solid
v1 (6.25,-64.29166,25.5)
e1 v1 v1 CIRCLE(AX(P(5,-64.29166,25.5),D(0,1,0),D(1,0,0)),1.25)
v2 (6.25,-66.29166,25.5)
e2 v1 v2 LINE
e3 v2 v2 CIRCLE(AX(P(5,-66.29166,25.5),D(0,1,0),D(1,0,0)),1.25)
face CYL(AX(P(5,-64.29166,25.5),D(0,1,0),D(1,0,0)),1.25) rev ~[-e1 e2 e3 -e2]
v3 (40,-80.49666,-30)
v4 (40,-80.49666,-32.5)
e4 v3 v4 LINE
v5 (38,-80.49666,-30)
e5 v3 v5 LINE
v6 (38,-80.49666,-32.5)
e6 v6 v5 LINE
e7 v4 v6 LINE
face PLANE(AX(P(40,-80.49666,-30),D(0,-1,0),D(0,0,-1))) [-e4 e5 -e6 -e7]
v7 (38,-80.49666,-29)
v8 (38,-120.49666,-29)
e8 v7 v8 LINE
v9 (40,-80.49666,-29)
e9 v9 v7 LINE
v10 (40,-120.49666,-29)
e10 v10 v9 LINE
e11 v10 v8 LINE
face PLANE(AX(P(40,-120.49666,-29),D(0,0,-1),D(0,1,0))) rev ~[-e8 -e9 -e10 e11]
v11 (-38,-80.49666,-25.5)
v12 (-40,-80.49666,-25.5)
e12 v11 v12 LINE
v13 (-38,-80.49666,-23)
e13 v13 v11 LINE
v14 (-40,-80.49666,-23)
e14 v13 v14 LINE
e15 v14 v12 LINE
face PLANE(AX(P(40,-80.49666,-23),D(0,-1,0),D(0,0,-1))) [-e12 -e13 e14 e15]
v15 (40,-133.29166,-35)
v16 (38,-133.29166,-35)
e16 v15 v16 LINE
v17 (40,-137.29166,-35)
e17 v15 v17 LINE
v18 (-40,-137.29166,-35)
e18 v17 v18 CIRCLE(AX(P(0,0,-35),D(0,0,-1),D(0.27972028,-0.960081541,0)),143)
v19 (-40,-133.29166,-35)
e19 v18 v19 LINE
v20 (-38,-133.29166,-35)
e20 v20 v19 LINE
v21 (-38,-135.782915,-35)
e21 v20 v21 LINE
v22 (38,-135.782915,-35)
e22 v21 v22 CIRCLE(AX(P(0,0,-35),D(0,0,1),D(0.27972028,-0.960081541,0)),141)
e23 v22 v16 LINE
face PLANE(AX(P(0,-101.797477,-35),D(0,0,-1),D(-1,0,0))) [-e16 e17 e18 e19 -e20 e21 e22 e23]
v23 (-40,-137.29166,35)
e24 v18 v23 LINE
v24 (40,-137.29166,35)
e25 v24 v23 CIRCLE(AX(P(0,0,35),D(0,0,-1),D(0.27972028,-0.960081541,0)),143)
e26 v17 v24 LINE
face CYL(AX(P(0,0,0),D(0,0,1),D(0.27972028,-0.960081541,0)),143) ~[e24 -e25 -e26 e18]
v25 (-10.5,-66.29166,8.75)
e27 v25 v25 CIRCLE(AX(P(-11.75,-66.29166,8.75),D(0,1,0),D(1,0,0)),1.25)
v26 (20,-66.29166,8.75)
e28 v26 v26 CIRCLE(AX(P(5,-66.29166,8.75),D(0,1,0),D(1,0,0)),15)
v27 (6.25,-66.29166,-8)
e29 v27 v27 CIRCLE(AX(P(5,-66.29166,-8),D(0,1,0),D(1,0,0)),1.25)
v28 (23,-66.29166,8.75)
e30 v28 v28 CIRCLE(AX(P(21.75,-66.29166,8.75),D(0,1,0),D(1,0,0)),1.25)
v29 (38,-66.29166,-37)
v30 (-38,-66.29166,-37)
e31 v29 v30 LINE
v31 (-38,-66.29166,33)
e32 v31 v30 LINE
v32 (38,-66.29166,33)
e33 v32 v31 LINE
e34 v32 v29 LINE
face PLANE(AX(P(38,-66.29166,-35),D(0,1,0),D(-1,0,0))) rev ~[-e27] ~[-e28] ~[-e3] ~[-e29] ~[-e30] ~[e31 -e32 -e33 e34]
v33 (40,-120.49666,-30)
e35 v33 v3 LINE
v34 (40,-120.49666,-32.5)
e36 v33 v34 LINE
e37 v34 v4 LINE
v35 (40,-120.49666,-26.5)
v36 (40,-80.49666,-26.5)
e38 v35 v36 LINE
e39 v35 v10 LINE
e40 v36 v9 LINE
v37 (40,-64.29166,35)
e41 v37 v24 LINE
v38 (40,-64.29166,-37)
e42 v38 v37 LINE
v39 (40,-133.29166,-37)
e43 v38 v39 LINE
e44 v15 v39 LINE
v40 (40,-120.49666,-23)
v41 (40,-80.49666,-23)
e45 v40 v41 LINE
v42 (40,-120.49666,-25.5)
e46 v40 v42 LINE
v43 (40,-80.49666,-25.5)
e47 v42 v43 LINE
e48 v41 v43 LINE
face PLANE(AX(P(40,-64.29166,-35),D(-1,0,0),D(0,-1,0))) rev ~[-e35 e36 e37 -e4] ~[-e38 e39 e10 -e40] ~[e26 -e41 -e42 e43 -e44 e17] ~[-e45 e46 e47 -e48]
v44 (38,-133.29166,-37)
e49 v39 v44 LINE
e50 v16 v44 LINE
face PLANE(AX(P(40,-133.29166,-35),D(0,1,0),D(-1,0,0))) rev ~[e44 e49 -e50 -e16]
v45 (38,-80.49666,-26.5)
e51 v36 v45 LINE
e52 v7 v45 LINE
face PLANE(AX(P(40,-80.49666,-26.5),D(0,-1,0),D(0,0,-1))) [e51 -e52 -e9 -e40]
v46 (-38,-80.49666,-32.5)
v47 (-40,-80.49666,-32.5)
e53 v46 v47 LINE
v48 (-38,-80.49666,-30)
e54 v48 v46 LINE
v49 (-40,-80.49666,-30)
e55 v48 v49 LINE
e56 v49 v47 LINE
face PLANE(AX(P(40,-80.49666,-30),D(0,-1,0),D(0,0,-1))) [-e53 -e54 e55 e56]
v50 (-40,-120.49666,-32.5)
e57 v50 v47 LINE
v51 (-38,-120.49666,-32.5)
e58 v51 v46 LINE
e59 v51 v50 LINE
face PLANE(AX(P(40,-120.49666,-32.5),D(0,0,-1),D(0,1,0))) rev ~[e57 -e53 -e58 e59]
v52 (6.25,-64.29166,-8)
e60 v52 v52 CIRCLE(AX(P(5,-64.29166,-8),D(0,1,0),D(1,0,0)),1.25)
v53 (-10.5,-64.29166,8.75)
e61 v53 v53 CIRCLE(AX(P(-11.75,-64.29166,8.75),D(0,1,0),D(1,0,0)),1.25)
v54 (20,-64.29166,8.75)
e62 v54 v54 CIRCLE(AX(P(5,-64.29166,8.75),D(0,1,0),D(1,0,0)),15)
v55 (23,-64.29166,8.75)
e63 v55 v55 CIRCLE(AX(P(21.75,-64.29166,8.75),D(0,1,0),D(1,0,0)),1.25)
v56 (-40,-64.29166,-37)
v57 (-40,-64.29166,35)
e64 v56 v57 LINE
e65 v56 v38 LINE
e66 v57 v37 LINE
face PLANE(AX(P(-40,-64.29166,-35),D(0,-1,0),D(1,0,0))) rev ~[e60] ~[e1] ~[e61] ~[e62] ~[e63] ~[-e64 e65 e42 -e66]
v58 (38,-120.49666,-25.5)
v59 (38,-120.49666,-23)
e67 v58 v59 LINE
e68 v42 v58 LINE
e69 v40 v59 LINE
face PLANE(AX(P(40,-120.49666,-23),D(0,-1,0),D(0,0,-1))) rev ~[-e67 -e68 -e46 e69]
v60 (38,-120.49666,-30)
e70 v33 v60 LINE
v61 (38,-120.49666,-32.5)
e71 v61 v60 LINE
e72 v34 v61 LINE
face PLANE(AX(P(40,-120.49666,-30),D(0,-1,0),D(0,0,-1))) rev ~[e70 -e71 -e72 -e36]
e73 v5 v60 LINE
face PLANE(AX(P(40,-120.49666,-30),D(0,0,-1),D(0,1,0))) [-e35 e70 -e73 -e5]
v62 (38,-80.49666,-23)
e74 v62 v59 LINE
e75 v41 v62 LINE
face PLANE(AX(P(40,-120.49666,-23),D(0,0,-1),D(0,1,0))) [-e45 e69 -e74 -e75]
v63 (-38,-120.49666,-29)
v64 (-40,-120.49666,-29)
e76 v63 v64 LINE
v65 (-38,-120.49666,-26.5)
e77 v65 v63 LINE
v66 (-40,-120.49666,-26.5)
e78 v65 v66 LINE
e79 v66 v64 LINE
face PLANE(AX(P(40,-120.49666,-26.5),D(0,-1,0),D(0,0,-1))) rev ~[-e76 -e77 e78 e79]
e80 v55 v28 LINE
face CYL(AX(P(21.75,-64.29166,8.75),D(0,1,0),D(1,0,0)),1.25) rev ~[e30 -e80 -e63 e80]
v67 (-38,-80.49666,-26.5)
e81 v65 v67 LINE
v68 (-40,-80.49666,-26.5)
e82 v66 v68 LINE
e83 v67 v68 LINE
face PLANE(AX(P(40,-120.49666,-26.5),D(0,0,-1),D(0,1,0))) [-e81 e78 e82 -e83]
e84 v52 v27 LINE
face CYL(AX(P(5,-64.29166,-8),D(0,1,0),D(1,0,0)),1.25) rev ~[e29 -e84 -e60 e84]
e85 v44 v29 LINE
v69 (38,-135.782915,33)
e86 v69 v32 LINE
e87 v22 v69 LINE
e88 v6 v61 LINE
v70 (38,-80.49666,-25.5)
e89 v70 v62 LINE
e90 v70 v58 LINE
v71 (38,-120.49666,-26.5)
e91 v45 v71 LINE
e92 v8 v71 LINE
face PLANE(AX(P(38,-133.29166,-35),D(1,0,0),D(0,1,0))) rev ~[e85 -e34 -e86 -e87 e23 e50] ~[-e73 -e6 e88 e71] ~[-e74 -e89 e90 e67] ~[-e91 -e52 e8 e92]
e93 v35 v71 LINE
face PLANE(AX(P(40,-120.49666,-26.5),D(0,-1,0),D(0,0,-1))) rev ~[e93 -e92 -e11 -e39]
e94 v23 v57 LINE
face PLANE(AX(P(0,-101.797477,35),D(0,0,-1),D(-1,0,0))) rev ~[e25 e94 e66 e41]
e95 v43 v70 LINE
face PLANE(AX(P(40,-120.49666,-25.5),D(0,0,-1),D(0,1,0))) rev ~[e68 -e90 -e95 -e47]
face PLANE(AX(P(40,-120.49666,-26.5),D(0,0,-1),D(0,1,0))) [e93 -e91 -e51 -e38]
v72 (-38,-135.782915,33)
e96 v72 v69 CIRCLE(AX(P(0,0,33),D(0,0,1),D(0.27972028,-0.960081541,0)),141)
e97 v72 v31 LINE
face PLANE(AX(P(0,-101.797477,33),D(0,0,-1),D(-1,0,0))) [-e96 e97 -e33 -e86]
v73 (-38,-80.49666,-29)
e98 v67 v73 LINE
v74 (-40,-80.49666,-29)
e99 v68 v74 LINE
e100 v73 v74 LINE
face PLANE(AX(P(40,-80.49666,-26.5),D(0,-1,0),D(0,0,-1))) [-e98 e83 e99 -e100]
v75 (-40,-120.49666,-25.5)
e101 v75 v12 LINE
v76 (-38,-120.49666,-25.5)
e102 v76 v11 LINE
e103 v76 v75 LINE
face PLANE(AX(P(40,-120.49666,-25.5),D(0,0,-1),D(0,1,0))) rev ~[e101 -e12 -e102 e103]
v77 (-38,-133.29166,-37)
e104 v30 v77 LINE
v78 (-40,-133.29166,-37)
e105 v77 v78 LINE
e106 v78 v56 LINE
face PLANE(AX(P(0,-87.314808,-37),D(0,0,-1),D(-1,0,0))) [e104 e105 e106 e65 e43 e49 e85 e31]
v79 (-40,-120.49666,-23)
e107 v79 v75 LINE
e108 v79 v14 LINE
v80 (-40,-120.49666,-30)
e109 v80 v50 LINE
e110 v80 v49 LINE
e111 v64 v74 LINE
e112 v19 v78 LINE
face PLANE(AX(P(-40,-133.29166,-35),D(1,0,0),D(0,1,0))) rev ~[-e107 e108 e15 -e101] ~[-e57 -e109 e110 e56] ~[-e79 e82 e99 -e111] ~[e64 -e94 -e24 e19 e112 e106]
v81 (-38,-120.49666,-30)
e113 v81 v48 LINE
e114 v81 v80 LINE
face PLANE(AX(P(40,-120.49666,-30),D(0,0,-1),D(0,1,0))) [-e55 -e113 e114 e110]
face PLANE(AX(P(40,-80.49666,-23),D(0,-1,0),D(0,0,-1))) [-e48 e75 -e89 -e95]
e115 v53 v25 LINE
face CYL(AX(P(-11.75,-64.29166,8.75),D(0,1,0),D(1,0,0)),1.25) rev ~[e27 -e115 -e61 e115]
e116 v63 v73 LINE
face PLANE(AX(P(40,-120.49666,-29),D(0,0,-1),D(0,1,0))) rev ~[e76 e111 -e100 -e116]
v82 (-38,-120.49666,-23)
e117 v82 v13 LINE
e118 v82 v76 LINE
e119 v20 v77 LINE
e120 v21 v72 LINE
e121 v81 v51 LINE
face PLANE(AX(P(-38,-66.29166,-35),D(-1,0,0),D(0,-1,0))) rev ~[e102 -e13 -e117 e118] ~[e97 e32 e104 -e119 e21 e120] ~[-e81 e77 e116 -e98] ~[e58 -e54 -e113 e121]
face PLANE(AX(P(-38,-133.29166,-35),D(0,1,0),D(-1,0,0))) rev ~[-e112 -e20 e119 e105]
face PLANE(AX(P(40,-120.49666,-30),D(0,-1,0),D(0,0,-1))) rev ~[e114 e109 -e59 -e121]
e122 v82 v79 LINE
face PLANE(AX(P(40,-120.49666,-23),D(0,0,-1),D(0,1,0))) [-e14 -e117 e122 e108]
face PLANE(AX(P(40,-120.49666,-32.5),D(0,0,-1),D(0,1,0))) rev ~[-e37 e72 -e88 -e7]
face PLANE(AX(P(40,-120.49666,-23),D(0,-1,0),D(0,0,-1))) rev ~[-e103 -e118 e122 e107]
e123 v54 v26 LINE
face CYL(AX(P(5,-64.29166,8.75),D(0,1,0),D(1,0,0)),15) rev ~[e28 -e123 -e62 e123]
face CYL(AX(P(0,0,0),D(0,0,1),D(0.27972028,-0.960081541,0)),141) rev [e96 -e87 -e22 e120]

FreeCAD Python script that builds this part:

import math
import FreeCAD as App
import Part
import Sketcher
Q = App.Units.Quantity


def faces_at(feature, points):
    """Names of the faces that lie closest to the given points."""
    faces = feature.Shape.Faces
    near = lambda p: min(range(len(faces)), key=lambda i: faces[i].distToShape(Part.Vertex(*p))[0])
    return sorted({f"Face{near(p) + 1}" for p in points})

doc = App.newDocument("Part")
params = doc.addObject("Spreadsheet::Sheet", "Params")
for row, (alias, value) in enumerate([
    ("sketch1_radius", "143 mm"),
    ("sketch1_width", "80 mm"),
    ("sketch1_height", "73 mm"),
    ("pad1_length", "70 mm"),
    ("thickness_wall", "2 mm"),
    ("sketch2_diameter", "30 mm"),
    ("sketch2_diameter2", "2.5 mm"),
    ("pocket1_length", "2 mm"),
    ("sketch3_width", "40 mm"),
    ("sketch3_height", "2.5 mm"),
    ("sketch4_width", "2 mm"),
    ("sketch4_width2", "76 mm"),
    ("sketch4_height", "69 mm"),
    ("sketch4_height2", "67 mm"),
    ("pad2_length", "2 mm"),
], start=1):
    params.set(f"A{row}", alias)
    params.set(f"B{row}", "=" + value)
    params.setAlias(f"B{row}", alias)

body = doc.addObject("PartDesign::Body", "Body")

# Sketch on XY plane
sketch1 = doc.addObject("Sketcher::SketchObject", "Sketch")
body.addObject(sketch1)
sketch1.AttachmentSupport = (doc.XY_Plane, [""])
sketch1.MapMode = "FlatFace"
sketch1.addGeometry([
    Part.LineSegment(App.Vector(-40, -64, 0), App.Vector(-40, -137, 0)),
    Part.ArcOfCircle(Part.Circle(App.Vector(0, 0, 0), App.Vector(0, 0, 1), 143), math.radians(-106), math.radians(-74)),
    Part.LineSegment(App.Vector(40, -137, 0), App.Vector(40, -64, 0)),
    Part.LineSegment(App.Vector(40, -64, 0), App.Vector(-40, -64, 0)),
], False)
sketch1.addConstraint([
    Sketcher.Constraint("Coincident", 0, 2, 1, 1),
    Sketcher.Constraint("Coincident", 1, 2, 2, 1),
    Sketcher.Constraint("Coincident", 2, 2, 3, 1),
    Sketcher.Constraint("Coincident", 3, 2, 0, 1),
    Sketcher.Constraint("Vertical", 0),
    Sketcher.Constraint("Vertical", 2),
    Sketcher.Constraint("Horizontal", 3),
    Sketcher.Constraint("Coincident", 1, 3, -1, 1),
    Sketcher.Constraint("Horizontal", 0, 2, 1, 2),
    Sketcher.Constraint("Radius", 1, Q("143 mm")),
    Sketcher.Constraint("DistanceX", 3, 2, 3, 1, Q("80 mm")),
    Sketcher.Constraint("DistanceY", 0, 2, 0, 1, Q("73 mm")),
])
sketch1.setExpression("Constraints[9]", "Params.sketch1_radius")
sketch1.setExpression("Constraints[10]", "Params.sketch1_width")
sketch1.setExpression("Constraints[11]", "Params.sketch1_height")
pad1 = doc.addObject("PartDesign::Pad", "Pad")
body.addObject(pad1)
pad1.Profile = sketch1
pad1.setExpression("Length", "Params.pad1_length")
pad1.Midplane = True
doc.recompute()

thickness = doc.addObject("PartDesign::Thickness", "Thickness")
body.addObject(thickness)
thickness.Base = (pad1, faces_at(pad1, [(0, -103.646, -35)]))
thickness.setExpression("Value", "Params.thickness_wall")
thickness.Reversed = True
thickness.Join = "Intersection"

# Sketch on XZ plane
sketch2 = doc.addObject("Sketcher::SketchObject", "Sketch001")
body.addObject(sketch2)
sketch2.AttachmentSupport = (doc.XZ_Plane, [""])
sketch2.MapMode = "FlatFace"
sketch2.AttachmentOffset = App.Placement(App.Vector(0, 0, 64.29166), App.Rotation())
sketch2.addGeometry([
    Part.Circle(App.Vector(5, 8.8, 0), App.Vector(0, 0, 1), 15),  # 0
    Part.Circle(App.Vector(5, -8, 0), App.Vector(0, 0, 1), 1.2),  # 1
    Part.Circle(App.Vector(21.8, 8.8, 0), App.Vector(0, 0, 1), 1.2),  # 2
    Part.Circle(App.Vector(-11.8, 8.8, 0), App.Vector(0, 0, 1), 1.2),  # 3
    Part.Circle(App.Vector(5, 25.5, 0), App.Vector(0, 0, 1), 1.2),  # 4
], False)
sketch2.addConstraint([
    Sketcher.Constraint("Equal", 1, 2),
    Sketcher.Constraint("Equal", 2, 3),
    Sketcher.Constraint("Equal", 3, 4),
    Sketcher.Constraint("Horizontal", 0, 3, 2, 3),
    Sketcher.Constraint("Horizontal", 2, 3, 3, 3),
    Sketcher.Constraint("Vertical", 0, 3, 1, 3),
    Sketcher.Constraint("Vertical", 1, 3, 4, 3),
    Sketcher.Constraint("Diameter", 0, Q("30 mm")),
    Sketcher.Constraint("Diameter", 1, Q("2.5 mm")),
    Sketcher.Constraint("DistanceX", -1, 1, 0, 3, Q("5 mm")),
    Sketcher.Constraint("DistanceY", 1, 3, -1, 1, Q("8 mm")),
    Sketcher.Constraint("DistanceY", -1, 1, 4, 3, Q("25.5 mm")),
    Sketcher.Constraint("DistanceX", 3, 3, 2, 3, Q("33.5 mm")),
    Sketcher.Constraint("DistanceY", -1, 1, 0, 3, Q("8.75 mm")),
    Sketcher.Constraint("DistanceX", -1, 1, 2, 3, Q("21.75 mm")),
])
sketch2.setExpression("Constraints[7]", "Params.sketch2_diameter")
sketch2.setExpression("Constraints[8]", "Params.sketch2_diameter2")
pocket1 = doc.addObject("PartDesign::Pocket", "Pocket")
body.addObject(pocket1)
pocket1.Profile = sketch2
pocket1.setExpression("Length", "Params.pocket1_length")
pocket1.Reversed = True

# Sketch on YZ plane
sketch3 = doc.addObject("Sketcher::SketchObject", "Sketch002")
body.addObject(sketch3)
sketch3.AttachmentSupport = (doc.YZ_Plane, [""])
sketch3.MapMode = "FlatFace"
sketch3.AttachmentOffset = App.Placement(App.Vector(0, 0, 40), App.Rotation())
sketch3.addGeometry([
    Part.LineSegment(App.Vector(-80.5, -23, 0), App.Vector(-120.5, -23, 0)),  # 0
    Part.LineSegment(App.Vector(-120.5, -23, 0), App.Vector(-120.5, -25.5, 0)),  # 1
    Part.LineSegment(App.Vector(-120.5, -25.5, 0), App.Vector(-80.5, -25.5, 0)),  # 2
    Part.LineSegment(App.Vector(-80.5, -25.5, 0), App.Vector(-80.5, -23, 0)),  # 3
    Part.LineSegment(App.Vector(-80.5, -26.5, 0), App.Vector(-120.5, -26.5, 0)),  # 4
    Part.LineSegment(App.Vector(-120.5, -26.5, 0), App.Vector(-120.5, -29, 0)),  # 5
    Part.LineSegment(App.Vector(-120.5, -29, 0), App.Vector(-80.5, -29, 0)),  # 6
    Part.LineSegment(App.Vector(-80.5, -29, 0), App.Vector(-80.5, -26.5, 0)),  # 7
    Part.LineSegment(App.Vector(-80.5, -30, 0), App.Vector(-120.5, -30, 0)),  # 8
    Part.LineSegment(App.Vector(-120.5, -30, 0), App.Vector(-120.5, -32.5, 0)),  # 9
    Part.LineSegment(App.Vector(-120.5, -32.5, 0), App.Vector(-80.5, -32.5, 0)),  # 10
    Part.LineSegment(App.Vector(-80.5, -32.5, 0), App.Vector(-80.5, -30, 0)),  # 11
], False)
sketch3.addConstraint([
    Sketcher.Constraint("Coincident", 0, 2, 1, 1),
    Sketcher.Constraint("Coincident", 1, 2, 2, 1),
    Sketcher.Constraint("Coincident", 2, 2, 3, 1),
    Sketcher.Constraint("Coincident", 3, 2, 0, 1),
    Sketcher.Constraint("Coincident", 4, 2, 5, 1),
    Sketcher.Constraint("Coincident", 5, 2, 6, 1),
    Sketcher.Constraint("Coincident", 6, 2, 7, 1),
    Sketcher.Constraint("Coincident", 7, 2, 4, 1),
    Sketcher.Constraint("Coincident", 8, 2, 9, 1),
    Sketcher.Constraint("Coincident", 9, 2, 10, 1),
    Sketcher.Constraint("Coincident", 10, 2, 11, 1),
    Sketcher.Constraint("Coincident", 11, 2, 8, 1),
    Sketcher.Constraint("Horizontal", 0),
    Sketcher.Constraint("Vertical", 1),
    Sketcher.Constraint("Horizontal", 2),
    Sketcher.Constraint("Vertical", 3),
    Sketcher.Constraint("Horizontal", 4),
    Sketcher.Constraint("Vertical", 5),
    Sketcher.Constraint("Horizontal", 6),
    Sketcher.Constraint("Vertical", 7),
    Sketcher.Constraint("Horizontal", 8),
    Sketcher.Constraint("Vertical", 9),
    Sketcher.Constraint("Horizontal", 10),
    Sketcher.Constraint("Vertical", 11),
    Sketcher.Constraint("Vertical", 1, 2, 4, 2),
    Sketcher.Constraint("Vertical", 3, 2, 6, 2),
    Sketcher.Constraint("Vertical", 5, 2, 8, 2),
    Sketcher.Constraint("Vertical", 7, 2, 10, 2),
    Sketcher.Constraint("Equal", 3, 5),
    Sketcher.Constraint("Equal", 7, 9),
    Sketcher.Constraint("DistanceX", 0, 2, 0, 1, Q("40 mm")),
    Sketcher.Constraint("DistanceY", 1, 2, 1, 1, Q("2.5 mm")),
    Sketcher.Constraint("DistanceY", 0, 2, -1, 1, Q("23 mm")),
    Sketcher.Constraint("DistanceY", 5, 2, -1, 1, Q("29 mm")),
    Sketcher.Constraint("DistanceY", 8, 2, -1, 1, Q("30 mm")),
    Sketcher.Constraint("DistanceX", 0, 2, -1, 1, Q("120.49666 mm")),
])
sketch3.setExpression("Constraints[30]", "Params.sketch3_width")
sketch3.setExpression("Constraints[31]", "Params.sketch3_height")
pocket2 = doc.addObject("PartDesign::Pocket", "Pocket001")
body.addObject(pocket2)
pocket2.Profile = sketch3
pocket2.Type = "ThroughAll"
pocket2.Midplane = True

# Sketch on XY plane
sketch4 = doc.addObject("Sketcher::SketchObject", "Sketch003")
body.addObject(sketch4)
sketch4.AttachmentSupport = (doc.XY_Plane, [""])
sketch4.MapMode = "FlatFace"
sketch4.AttachmentOffset = App.Placement(App.Vector(0, 0, -35), App.Rotation())
sketch4.addGeometry([
    Part.LineSegment(App.Vector(40, -64.3, 0), App.Vector(40, -133.3, 0)),  # 0
    Part.LineSegment(App.Vector(40, -133.3, 0), App.Vector(38, -133.3, 0)),  # 1
    Part.LineSegment(App.Vector(38, -133.3, 0), App.Vector(38, -66.3, 0)),  # 2
    Part.LineSegment(App.Vector(38, -66.3, 0), App.Vector(-38, -66.3, 0)),  # 3
    Part.LineSegment(App.Vector(-38, -66.3, 0), App.Vector(-38, -133.3, 0)),  # 4
    Part.LineSegment(App.Vector(-38, -133.3, 0), App.Vector(-40, -133.3, 0)),  # 5
    Part.LineSegment(App.Vector(-40, -133.3, 0), App.Vector(-40, -64.3, 0)),  # 6
    Part.LineSegment(App.Vector(-40, -64.3, 0), App.Vector(40, -64.3, 0)),  # 7
], False)
sketch4.addConstraint([
    Sketcher.Constraint("Coincident", 0, 2, 1, 1),
    Sketcher.Constraint("Coincident", 1, 2, 2, 1),
    Sketcher.Constraint("Coincident", 2, 2, 3, 1),
    Sketcher.Constraint("Coincident", 3, 2, 4, 1),
    Sketcher.Constraint("Coincident", 4, 2, 5, 1),
    Sketcher.Constraint("Coincident", 5, 2, 6, 1),
    Sketcher.Constraint("Coincident", 6, 2, 7, 1),
    Sketcher.Constraint("Coincident", 7, 2, 0, 1),
    Sketcher.Constraint("Vertical", 0),
    Sketcher.Constraint("Horizontal", 1),
    Sketcher.Constraint("Vertical", 2),
    Sketcher.Constraint("Horizontal", 3),
    Sketcher.Constraint("Vertical", 4),
    Sketcher.Constraint("Horizontal", 5),
    Sketcher.Constraint("Vertical", 6),
    Sketcher.Constraint("Horizontal", 7),
    Sketcher.Constraint("Symmetric", 1, 2, 4, 2, -2),
    Sketcher.Constraint("Equal", 1, 5),
    Sketcher.Constraint("DistanceX", 1, 2, 1, 1, Q("2 mm")),
    Sketcher.Constraint("DistanceX", 3, 2, 3, 1, Q("76 mm")),
    Sketcher.Constraint("DistanceY", 0, 2, 0, 1, Q("69 mm")),
    Sketcher.Constraint("DistanceY", 2, 1, 2, 2, Q("67 mm")),
    Sketcher.Constraint("DistanceY", 0, 2, -1, 1, Q("133.29166 mm")),
])
sketch4.setExpression("Constraints[18]", "Params.sketch4_width")
sketch4.setExpression("Constraints[19]", "Params.sketch4_width2")
sketch4.setExpression("Constraints[20]", "Params.sketch4_height")
sketch4.setExpression("Constraints[21]", "Params.sketch4_height2")
pad2 = doc.addObject("PartDesign::Pad", "Pad001")
body.addObject(pad2)
pad2.Profile = sketch4
pad2.setExpression("Length", "Params.pad2_length")
pad2.Reversed = True

doc.recompute()
